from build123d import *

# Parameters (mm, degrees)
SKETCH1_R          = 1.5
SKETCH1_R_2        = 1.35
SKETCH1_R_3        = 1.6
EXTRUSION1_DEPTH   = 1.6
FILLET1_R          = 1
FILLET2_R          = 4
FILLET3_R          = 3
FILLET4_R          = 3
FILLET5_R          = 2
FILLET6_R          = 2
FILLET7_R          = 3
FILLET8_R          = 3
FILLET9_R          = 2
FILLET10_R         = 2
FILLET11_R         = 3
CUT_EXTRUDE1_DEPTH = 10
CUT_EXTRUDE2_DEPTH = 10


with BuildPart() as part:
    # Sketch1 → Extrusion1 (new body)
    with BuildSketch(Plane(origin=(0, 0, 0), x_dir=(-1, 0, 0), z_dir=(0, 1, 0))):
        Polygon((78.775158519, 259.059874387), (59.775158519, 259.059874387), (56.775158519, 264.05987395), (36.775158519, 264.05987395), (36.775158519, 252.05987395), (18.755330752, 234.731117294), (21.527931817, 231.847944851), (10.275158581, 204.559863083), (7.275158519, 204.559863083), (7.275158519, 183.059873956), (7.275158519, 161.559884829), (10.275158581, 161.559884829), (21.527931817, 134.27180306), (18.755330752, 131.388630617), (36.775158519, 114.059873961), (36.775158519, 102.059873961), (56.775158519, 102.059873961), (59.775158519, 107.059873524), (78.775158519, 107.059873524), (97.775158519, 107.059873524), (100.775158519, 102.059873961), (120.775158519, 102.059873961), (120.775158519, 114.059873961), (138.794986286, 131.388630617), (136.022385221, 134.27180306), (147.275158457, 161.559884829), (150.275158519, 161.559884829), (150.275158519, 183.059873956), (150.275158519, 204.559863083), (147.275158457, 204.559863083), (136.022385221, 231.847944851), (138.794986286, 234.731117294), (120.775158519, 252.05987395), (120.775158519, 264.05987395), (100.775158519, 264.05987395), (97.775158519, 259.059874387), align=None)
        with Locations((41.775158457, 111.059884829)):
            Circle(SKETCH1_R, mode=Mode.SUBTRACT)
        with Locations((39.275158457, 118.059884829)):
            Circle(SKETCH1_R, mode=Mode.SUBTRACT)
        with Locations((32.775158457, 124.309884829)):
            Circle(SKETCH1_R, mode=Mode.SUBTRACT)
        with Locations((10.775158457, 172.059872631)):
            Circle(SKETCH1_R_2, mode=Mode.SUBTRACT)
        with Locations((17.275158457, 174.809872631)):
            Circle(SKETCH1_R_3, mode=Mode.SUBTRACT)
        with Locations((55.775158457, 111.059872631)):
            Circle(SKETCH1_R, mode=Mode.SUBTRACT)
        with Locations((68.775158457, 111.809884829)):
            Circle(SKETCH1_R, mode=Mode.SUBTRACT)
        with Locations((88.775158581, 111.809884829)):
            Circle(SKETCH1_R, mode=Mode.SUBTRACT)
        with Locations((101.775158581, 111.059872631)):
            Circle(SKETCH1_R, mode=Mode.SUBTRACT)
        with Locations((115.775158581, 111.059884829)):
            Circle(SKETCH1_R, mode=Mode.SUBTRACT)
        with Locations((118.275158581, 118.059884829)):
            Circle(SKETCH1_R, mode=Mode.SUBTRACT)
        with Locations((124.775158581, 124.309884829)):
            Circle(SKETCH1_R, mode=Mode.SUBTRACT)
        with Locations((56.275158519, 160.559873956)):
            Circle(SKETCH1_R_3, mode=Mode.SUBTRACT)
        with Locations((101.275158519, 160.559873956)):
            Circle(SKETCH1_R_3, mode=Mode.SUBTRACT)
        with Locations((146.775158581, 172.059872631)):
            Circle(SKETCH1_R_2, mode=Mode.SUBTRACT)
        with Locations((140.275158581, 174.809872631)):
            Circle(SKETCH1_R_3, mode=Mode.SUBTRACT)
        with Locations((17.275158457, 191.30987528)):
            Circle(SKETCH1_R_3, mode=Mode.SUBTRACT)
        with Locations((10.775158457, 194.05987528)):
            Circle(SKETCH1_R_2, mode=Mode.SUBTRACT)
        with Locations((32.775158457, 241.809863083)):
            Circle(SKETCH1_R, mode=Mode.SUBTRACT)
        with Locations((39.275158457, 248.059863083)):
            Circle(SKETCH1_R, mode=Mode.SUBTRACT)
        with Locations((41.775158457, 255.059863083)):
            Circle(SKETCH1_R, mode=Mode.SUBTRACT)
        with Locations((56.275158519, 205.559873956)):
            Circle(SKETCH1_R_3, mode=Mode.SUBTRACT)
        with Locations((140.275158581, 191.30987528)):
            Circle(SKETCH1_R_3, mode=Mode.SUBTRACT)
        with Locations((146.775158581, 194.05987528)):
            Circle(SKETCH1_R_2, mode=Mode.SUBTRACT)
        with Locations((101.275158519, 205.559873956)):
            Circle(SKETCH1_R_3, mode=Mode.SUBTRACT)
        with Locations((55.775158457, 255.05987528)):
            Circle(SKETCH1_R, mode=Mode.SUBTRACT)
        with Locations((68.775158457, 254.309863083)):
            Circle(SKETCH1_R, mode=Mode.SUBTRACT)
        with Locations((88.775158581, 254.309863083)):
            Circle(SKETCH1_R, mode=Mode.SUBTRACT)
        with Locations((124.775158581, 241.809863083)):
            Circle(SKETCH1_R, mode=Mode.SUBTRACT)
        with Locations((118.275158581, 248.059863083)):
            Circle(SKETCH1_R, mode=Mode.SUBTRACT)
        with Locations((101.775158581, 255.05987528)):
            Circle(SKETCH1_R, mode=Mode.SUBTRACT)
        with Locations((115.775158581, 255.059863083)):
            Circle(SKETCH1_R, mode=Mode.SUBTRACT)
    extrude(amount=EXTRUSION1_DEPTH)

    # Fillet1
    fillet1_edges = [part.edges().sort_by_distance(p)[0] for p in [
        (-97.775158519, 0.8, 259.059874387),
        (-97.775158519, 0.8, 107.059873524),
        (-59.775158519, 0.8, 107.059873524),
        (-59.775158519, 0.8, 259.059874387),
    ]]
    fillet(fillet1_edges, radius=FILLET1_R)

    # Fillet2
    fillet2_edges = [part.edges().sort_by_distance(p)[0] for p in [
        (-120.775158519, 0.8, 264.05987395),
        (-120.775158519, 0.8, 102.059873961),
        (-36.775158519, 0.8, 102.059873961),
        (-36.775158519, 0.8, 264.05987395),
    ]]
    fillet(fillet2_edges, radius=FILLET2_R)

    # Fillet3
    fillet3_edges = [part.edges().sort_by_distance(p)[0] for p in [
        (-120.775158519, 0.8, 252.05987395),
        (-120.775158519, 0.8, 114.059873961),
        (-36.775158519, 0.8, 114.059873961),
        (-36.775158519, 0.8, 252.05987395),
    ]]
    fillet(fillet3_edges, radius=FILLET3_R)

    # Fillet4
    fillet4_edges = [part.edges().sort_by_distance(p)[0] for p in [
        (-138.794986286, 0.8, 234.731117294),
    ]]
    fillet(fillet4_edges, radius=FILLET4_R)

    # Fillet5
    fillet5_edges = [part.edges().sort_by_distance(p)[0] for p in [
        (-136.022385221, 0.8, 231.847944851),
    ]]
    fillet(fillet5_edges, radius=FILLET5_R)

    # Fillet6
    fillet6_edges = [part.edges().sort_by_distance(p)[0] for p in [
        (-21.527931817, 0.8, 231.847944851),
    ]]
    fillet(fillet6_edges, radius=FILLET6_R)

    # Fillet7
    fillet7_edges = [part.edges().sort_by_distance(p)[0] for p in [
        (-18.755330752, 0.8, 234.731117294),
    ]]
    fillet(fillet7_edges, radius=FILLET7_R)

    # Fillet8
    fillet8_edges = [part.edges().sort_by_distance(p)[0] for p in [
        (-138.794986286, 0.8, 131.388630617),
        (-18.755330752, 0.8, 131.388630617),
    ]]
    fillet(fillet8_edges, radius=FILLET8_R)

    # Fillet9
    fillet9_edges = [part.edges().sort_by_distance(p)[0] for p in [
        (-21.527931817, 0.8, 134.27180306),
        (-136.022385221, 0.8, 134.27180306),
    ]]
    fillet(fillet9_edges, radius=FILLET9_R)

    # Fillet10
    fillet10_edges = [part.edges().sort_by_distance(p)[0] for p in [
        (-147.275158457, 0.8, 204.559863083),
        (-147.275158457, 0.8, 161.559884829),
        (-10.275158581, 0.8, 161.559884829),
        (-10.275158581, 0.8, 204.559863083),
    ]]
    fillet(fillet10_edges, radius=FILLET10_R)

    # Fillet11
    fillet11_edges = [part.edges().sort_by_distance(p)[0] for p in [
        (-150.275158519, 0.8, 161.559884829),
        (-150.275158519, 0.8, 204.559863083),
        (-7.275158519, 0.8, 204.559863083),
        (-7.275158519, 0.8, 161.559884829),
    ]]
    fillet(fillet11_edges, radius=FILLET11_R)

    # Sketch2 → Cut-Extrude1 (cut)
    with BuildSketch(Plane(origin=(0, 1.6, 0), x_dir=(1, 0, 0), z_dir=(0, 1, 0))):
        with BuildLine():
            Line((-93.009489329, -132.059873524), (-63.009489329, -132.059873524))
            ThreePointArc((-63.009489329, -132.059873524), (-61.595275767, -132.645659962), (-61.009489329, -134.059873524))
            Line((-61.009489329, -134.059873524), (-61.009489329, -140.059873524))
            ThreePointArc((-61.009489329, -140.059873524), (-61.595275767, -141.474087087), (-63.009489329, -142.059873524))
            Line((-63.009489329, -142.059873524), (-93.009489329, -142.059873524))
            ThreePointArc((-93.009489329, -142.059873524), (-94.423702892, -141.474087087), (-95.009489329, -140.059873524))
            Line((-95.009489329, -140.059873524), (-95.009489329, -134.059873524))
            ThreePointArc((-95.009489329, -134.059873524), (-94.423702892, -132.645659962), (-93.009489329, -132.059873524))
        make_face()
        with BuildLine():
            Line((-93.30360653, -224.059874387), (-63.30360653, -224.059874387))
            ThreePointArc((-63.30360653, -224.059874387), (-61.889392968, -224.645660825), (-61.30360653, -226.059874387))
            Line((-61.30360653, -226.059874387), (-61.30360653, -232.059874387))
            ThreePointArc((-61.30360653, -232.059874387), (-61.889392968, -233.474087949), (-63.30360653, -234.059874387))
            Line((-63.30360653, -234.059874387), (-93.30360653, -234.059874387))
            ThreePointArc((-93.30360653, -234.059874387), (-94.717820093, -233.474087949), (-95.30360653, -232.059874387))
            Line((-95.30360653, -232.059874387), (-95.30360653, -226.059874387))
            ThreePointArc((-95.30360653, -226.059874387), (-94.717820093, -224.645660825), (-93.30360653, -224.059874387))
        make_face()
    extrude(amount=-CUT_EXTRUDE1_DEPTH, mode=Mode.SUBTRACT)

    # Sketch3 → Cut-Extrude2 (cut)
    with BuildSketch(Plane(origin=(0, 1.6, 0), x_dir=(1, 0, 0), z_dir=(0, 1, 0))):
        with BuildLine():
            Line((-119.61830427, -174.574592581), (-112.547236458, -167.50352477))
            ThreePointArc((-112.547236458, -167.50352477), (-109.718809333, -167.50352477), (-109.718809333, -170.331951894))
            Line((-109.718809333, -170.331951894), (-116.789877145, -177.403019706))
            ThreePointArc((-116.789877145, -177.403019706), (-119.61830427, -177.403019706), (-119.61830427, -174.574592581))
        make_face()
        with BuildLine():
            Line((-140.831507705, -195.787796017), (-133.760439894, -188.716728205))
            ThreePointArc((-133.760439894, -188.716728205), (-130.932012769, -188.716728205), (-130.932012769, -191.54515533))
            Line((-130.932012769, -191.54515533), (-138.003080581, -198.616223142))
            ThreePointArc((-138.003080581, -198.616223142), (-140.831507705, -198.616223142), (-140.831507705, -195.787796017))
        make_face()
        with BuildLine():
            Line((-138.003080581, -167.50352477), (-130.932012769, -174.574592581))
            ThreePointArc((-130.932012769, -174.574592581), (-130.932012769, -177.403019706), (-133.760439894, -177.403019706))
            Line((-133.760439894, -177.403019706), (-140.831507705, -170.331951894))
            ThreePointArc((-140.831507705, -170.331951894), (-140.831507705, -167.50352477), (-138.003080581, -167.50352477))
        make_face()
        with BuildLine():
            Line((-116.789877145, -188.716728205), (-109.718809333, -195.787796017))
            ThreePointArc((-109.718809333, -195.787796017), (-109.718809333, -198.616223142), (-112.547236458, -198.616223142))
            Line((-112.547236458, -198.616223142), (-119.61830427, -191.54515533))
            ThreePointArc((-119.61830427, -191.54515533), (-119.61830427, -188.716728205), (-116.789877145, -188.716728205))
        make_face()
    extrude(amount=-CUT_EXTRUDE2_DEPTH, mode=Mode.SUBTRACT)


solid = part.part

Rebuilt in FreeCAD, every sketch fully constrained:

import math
import FreeCAD as App
import Part
import Sketcher

V = App.Vector
Q = App.Units.Quantity


def edges_at(feature, points):
    """Names of the edges that pass closest to the given points."""
    edges = feature.Shape.Edges
    near = lambda p: min(range(len(edges)), key=lambda i: edges[i].distToShape(Part.Vertex(*p))[0])
    return sorted({f"Edge{near(p) + 1}" for p in points})

doc = App.newDocument("Part")
body = doc.addObject("PartDesign::Body", "Body")

# Sketch on XZ plane
sketch1 = body.newObject("Sketcher::SketchObject", "Sketch")
sketch1.AttachmentSupport = (doc.getObject("XZ_Plane"), [""])
sketch1.MapMode = "FlatFace"
sketch1.addGeometry([
    Part.LineSegment(V(-59.775159, 259.059874, 0), V(-56.775159, 264.059874, 0)),  # 0
    Part.LineSegment(V(-56.775159, 264.059874, 0), V(-36.775159, 264.059874, 0)),  # 1
    Part.LineSegment(V(-36.775159, 264.059874, 0), V(-36.775159, 252.059874, 0)),  # 2
    Part.LineSegment(V(-36.775159, 252.059874, 0), V(-18.755331, 234.731117, 0)),  # 3
    Part.LineSegment(V(-18.755331, 234.731117, 0), V(-21.527932, 231.847945, 0)),  # 4
    Part.LineSegment(V(-21.527932, 231.847945, 0), V(-10.275159, 204.559863, 0)),  # 5
    Part.LineSegment(V(-10.275159, 204.559863, 0), V(-7.275159, 204.559863, 0)),  # 6
    Part.LineSegment(V(-7.275159, 204.559863, 0), V(-7.275159, 161.559885, 0)),  # 7
    Part.LineSegment(V(-7.275159, 161.559885, 0), V(-10.275159, 161.559885, 0)),  # 8
    Part.LineSegment(V(-10.275159, 161.559885, 0), V(-21.527932, 134.271803, 0)),  # 9
    Part.LineSegment(V(-21.527932, 134.271803, 0), V(-18.755331, 131.388631, 0)),  # 10
    Part.LineSegment(V(-18.755331, 131.388631, 0), V(-36.775159, 114.059874, 0)),  # 11
    Part.LineSegment(V(-36.775159, 114.059874, 0), V(-36.775159, 102.059874, 0)),  # 12
    Part.LineSegment(V(-36.775159, 102.059874, 0), V(-56.775159, 102.059874, 0)),  # 13
    Part.LineSegment(V(-56.775159, 102.059874, 0), V(-59.775159, 107.059874, 0)),  # 14
    Part.LineSegment(V(-59.775159, 107.059874, 0), V(-97.775159, 107.059874, 0)),  # 15
    Part.LineSegment(V(-97.775159, 107.059874, 0), V(-100.775159, 102.059874, 0)),  # 16
    Part.LineSegment(V(-100.775159, 102.059874, 0), V(-120.775159, 102.059874, 0)),  # 17
    Part.LineSegment(V(-120.775159, 102.059874, 0), V(-120.775159, 114.059874, 0)),  # 18
    Part.LineSegment(V(-120.775159, 114.059874, 0), V(-138.794986, 131.388631, 0)),  # 19
    Part.LineSegment(V(-138.794986, 131.388631, 0), V(-136.022385, 134.271803, 0)),  # 20
    Part.LineSegment(V(-136.022385, 134.271803, 0), V(-147.275158, 161.559885, 0)),  # 21
    Part.LineSegment(V(-147.275158, 161.559885, 0), V(-150.275159, 161.559885, 0)),  # 22
    Part.LineSegment(V(-150.275159, 161.559885, 0), V(-150.275159, 204.559863, 0)),  # 23
    Part.LineSegment(V(-150.275159, 204.559863, 0), V(-147.275158, 204.559863, 0)),  # 24
    Part.LineSegment(V(-147.275158, 204.559863, 0), V(-136.022385, 231.847945, 0)),  # 25
    Part.LineSegment(V(-136.022385, 231.847945, 0), V(-138.794986, 234.731117, 0)),  # 26
    Part.LineSegment(V(-138.794986, 234.731117, 0), V(-120.775159, 252.059874, 0)),  # 27
    Part.LineSegment(V(-120.775159, 252.059874, 0), V(-120.775159, 264.059874, 0)),  # 28
    Part.LineSegment(V(-120.775159, 264.059874, 0), V(-100.775159, 264.059874, 0)),  # 29
    Part.LineSegment(V(-100.775159, 264.059874, 0), V(-97.775159, 259.059874, 0)),  # 30
    Part.LineSegment(V(-97.775159, 259.059874, 0), V(-59.775159, 259.059874, 0)),  # 31
    Part.Circle(V(-41.775158, 111.059885, 0), V(0, 0, 1), 1.5),  # 32
    Part.Circle(V(-39.275158, 118.059885, 0), V(0, 0, 1), 1.5),  # 33
    Part.Circle(V(-32.775158, 124.309885, 0), V(0, 0, 1), 1.5),  # 34
    Part.Circle(V(-55.775158, 111.059873, 0), V(0, 0, 1), 1.5),  # 35
    Part.Circle(V(-68.775158, 111.809885, 0), V(0, 0, 1), 1.5),  # 36
    Part.Circle(V(-10.775158, 172.059873, 0), V(0, 0, 1), 1.35),  # 37
    Part.Circle(V(-17.275158, 174.809873, 0), V(0, 0, 1), 1.6),  # 38
    Part.Circle(V(-56.275159, 160.559874, 0), V(0, 0, 1), 1.6),  # 39
    Part.Circle(V(-88.775159, 111.809885, 0), V(0, 0, 1), 1.5),  # 40
    Part.Circle(V(-101.775159, 111.059873, 0), V(0, 0, 1), 1.5),  # 41
    Part.Circle(V(-115.775159, 111.059885, 0), V(0, 0, 1), 1.5),  # 42
    Part.Circle(V(-118.275159, 118.059885, 0), V(0, 0, 1), 1.5),  # 43
    Part.Circle(V(-124.775159, 124.309885, 0), V(0, 0, 1), 1.5),  # 44
    Part.Circle(V(-101.275159, 160.559874, 0), V(0, 0, 1), 1.6),  # 45
    Part.Circle(V(-146.775159, 172.059873, 0), V(0, 0, 1), 1.35),  # 46
    Part.Circle(V(-140.275159, 174.809873, 0), V(0, 0, 1), 1.6),  # 47
    Part.Circle(V(-17.275158, 191.309875, 0), V(0, 0, 1), 1.6),  # 48
    Part.Circle(V(-10.775158, 194.059875, 0), V(0, 0, 1), 1.35),  # 49
    Part.Circle(V(-56.275159, 205.559874, 0), V(0, 0, 1), 1.6),  # 50
    Part.Circle(V(-32.775158, 241.809863, 0), V(0, 0, 1), 1.5),  # 51
    Part.Circle(V(-39.275158, 248.059863, 0), V(0, 0, 1), 1.5),  # 52
    Part.Circle(V(-41.775158, 255.059863, 0), V(0, 0, 1), 1.5),  # 53
    Part.Circle(V(-55.775158, 255.059875, 0), V(0, 0, 1), 1.5),  # 54
    Part.Circle(V(-68.775158, 254.309863, 0), V(0, 0, 1), 1.5),  # 55
    Part.Circle(V(-101.275159, 205.559874, 0), V(0, 0, 1), 1.6),  # 56
    Part.Circle(V(-140.275159, 191.309875, 0), V(0, 0, 1), 1.6),  # 57
    Part.Circle(V(-146.775159, 194.059875, 0), V(0, 0, 1), 1.35),  # 58
    Part.Circle(V(-88.775159, 254.309863, 0), V(0, 0, 1), 1.5),  # 59
    Part.Circle(V(-101.775159, 255.059875, 0), V(0, 0, 1), 1.5),  # 60
    Part.Circle(V(-124.775159, 241.809863, 0), V(0, 0, 1), 1.5),  # 61
    Part.Circle(V(-118.275159, 248.059863, 0), V(0, 0, 1), 1.5),  # 62
    Part.Circle(V(-115.775159, 255.059863, 0), V(0, 0, 1), 1.5),  # 63
], False)
sketch1.addConstraint([
    Sketcher.Constraint("Coincident", 0, 2, 1, 1),
    Sketcher.Constraint("Coincident", 1, 2, 2, 1),
    Sketcher.Constraint("Coincident", 2, 2, 3, 1),
    Sketcher.Constraint("Coincident", 3, 2, 4, 1),
    Sketcher.Constraint("Coincident", 4, 2, 5, 1),
    Sketcher.Constraint("Coincident", 5, 2, 6, 1),
    Sketcher.Constraint("Coincident", 6, 2, 7, 1),
    Sketcher.Constraint("Coincident", 7, 2, 8, 1),
    Sketcher.Constraint("Coincident", 8, 2, 9, 1),
    Sketcher.Constraint("Coincident", 9, 2, 10, 1),
    Sketcher.Constraint("Coincident", 10, 2, 11, 1),
    Sketcher.Constraint("Coincident", 11, 2, 12, 1),
    Sketcher.Constraint("Coincident", 12, 2, 13, 1),
    Sketcher.Constraint("Coincident", 13, 2, 14, 1),
    Sketcher.Constraint("Coincident", 14, 2, 15, 1),
    Sketcher.Constraint("Coincident", 15, 2, 16, 1),
    Sketcher.Constraint("Coincident", 16, 2, 17, 1),
    Sketcher.Constraint("Coincident", 17, 2, 18, 1),
    Sketcher.Constraint("Coincident", 18, 2, 19, 1),
    Sketcher.Constraint("Coincident", 19, 2, 20, 1),
    Sketcher.Constraint("Coincident", 20, 2, 21, 1),
    Sketcher.Constraint("Coincident", 21, 2, 22, 1),
    Sketcher.Constraint("Coincident", 22, 2, 23, 1),
    Sketcher.Constraint("Coincident", 23, 2, 24, 1),
    Sketcher.Constraint("Coincident", 24, 2, 25, 1),
    Sketcher.Constraint("Coincident", 25, 2, 26, 1),
    Sketcher.Constraint("Coincident", 26, 2, 27, 1),
    Sketcher.Constraint("Coincident", 27, 2, 28, 1),
    Sketcher.Constraint("Coincident", 28, 2, 29, 1),
    Sketcher.Constraint("Coincident", 29, 2, 30, 1),
    Sketcher.Constraint("Coincident", 30, 2, 31, 1),
    Sketcher.Constraint("Coincident", 31, 2, 0, 1),
    Sketcher.Constraint("Horizontal", 1),
    Sketcher.Constraint("Vertical", 2),
    Sketcher.Constraint("Horizontal", 6),
    Sketcher.Constraint("Vertical", 7),
    Sketcher.Constraint("Horizontal", 8),
    Sketcher.Constraint("Vertical", 12),
    Sketcher.Constraint("Horizontal", 13),
    Sketcher.Constraint("Horizontal", 15),
    Sketcher.Constraint("Horizontal", 17),
    Sketcher.Constraint("Vertical", 18),
    Sketcher.Constraint("Horizontal", 22),
    Sketcher.Constraint("Vertical", 23),
    Sketcher.Constraint("Horizontal", 24),
    Sketcher.Constraint("Vertical", 28),
    Sketcher.Constraint("Horizontal", 29),
    Sketcher.Constraint("Horizontal", 31),
    Sketcher.Constraint("Equal", 32, 33),
    Sketcher.Constraint("Equal", 33, 34),
    Sketcher.Constraint("Equal", 34, 35),
    Sketcher.Constraint("Equal", 35, 36),
    Sketcher.Constraint("Equal", 38, 39),
    Sketcher.Constraint("Equal", 36, 40),
    Sketcher.Constraint("Equal", 40, 41),
    Sketcher.Constraint("Equal", 41, 42),
    Sketcher.Constraint("Equal", 42, 43),
    Sketcher.Constraint("Equal", 43, 44),
    Sketcher.Constraint("Equal", 39, 45),
    Sketcher.Constraint("Equal", 37, 46),
    Sketcher.Constraint("Equal", 45, 47),
    Sketcher.Constraint("Equal", 47, 48),
    Sketcher.Constraint("Equal", 46, 49),
    Sketcher.Constraint("Equal", 48, 50),
    Sketcher.Constraint("Equal", 44, 51),
    Sketcher.Constraint("Equal", 51, 52),
    Sketcher.Constraint("Equal", 52, 53),
    Sketcher.Constraint("Equal", 53, 54),
    Sketcher.Constraint("Equal", 54, 55),
    Sketcher.Constraint("Equal", 50, 56),
    Sketcher.Constraint("Equal", 56, 57),
    Sketcher.Constraint("Equal", 49, 58),
    Sketcher.Constraint("Equal", 55, 59),
    Sketcher.Constraint("Equal", 59, 60),
    Sketcher.Constraint("Equal", 60, 61),
    Sketcher.Constraint("Equal", 61, 62),
    Sketcher.Constraint("Equal", 62, 63),
    Sketcher.Constraint("Perpendicular", 3, 4),
    Sketcher.Constraint("Perpendicular", 10, 11),
    Sketcher.Constraint("Parallel", 0, 16),
    Sketcher.Constraint("Perpendicular", 4, 19),
    Sketcher.Constraint("Perpendicular", 19, 20),
    Sketcher.Constraint("Parallel", 5, 21),
    Sketcher.Constraint("Parallel", 9, 25),
    Sketcher.Constraint("Perpendicular", 11, 26),
    Sketcher.Constraint("Perpendicular", 26, 27),
    Sketcher.Constraint("Parallel", 14, 30),
    Sketcher.Constraint("Horizontal", 36, 3, 40, 3),
    Sketcher.Constraint("Horizontal", 35, 3, 41, 3),
    Sketcher.Constraint("Horizontal", 32, 3, 42, 3),
    Sketcher.Constraint("Horizontal", 33, 3, 43, 3),
    Sketcher.Constraint("Horizontal", 34, 3, 44, 3),
    Sketcher.Constraint("Horizontal", 39, 3, 45, 3),
    Sketcher.Constraint("Horizontal", 37, 3, 46, 3),
    Sketcher.Constraint("Horizontal", 38, 3, 47, 3),
    Sketcher.Constraint("Horizontal", 50, 3, 56, 3),
    Sketcher.Constraint("Horizontal", 48, 3, 57, 3),
    Sketcher.Constraint("Horizontal", 49, 3, 58, 3),
    Sketcher.Constraint("Horizontal", 55, 3, 59, 3),
    Sketcher.Constraint("Horizontal", 54, 3, 60, 3),
    Sketcher.Constraint("Horizontal", 51, 3, 61, 3),
    Sketcher.Constraint("Horizontal", 52, 3, 62, 3),
    Sketcher.Constraint("Horizontal", 53, 3, 63, 3),
    Sketcher.Constraint("Horizontal", 13, 2, 16, 2),
    Sketcher.Constraint("Horizontal", 11, 2, 18, 2),
    Sketcher.Constraint("Horizontal", 10, 2, 19, 2),
    Sketcher.Constraint("Horizontal", 9, 2, 20, 2),
    Sketcher.Constraint("Horizontal", 8, 2, 21, 2),
    Sketcher.Constraint("Horizontal", 6, 2, 23, 2),
    Sketcher.Constraint("Horizontal", 4, 2, 25, 2),
    Sketcher.Constraint("Horizontal", 3, 2, 26, 2),
    Sketcher.Constraint("Horizontal", 2, 2, 27, 2),
    Sketcher.Constraint("Horizontal", 1, 2, 28, 2),
    Sketcher.Constraint("Vertical", 38, 3, 48, 3),
    Sketcher.Constraint("Vertical", 37, 3, 49, 3),
    Sketcher.Constraint("Vertical", 39, 3, 50, 3),
    Sketcher.Constraint("Vertical", 34, 3, 51, 3),
    Sketcher.Constraint("Vertical", 33, 3, 52, 3),
    Sketcher.Constraint("Vertical", 32, 3, 53, 3),
    Sketcher.Constraint("Vertical", 35, 3, 54, 3),
    Sketcher.Constraint("Vertical", 36, 3, 55, 3),
    Sketcher.Constraint("Vertical", 45, 3, 56, 3),
    Sketcher.Constraint("Vertical", 47, 3, 57, 3),
    Sketcher.Constraint("Vertical", 46, 3, 58, 3),
    Sketcher.Constraint("Vertical", 40, 3, 59, 3),
    Sketcher.Constraint("Vertical", 41, 3, 60, 3),
    Sketcher.Constraint("Vertical", 44, 3, 61, 3),
    Sketcher.Constraint("Vertical", 43, 3, 62, 3),
    Sketcher.Constraint("Vertical", 42, 3, 63, 3),
    Sketcher.Constraint("Vertical", 5, 2, 8, 2),
    Sketcher.Constraint("Vertical", 4, 2, 9, 2),
    Sketcher.Constraint("Vertical", 3, 2, 10, 2),
    Sketcher.Constraint("Vertical", 2, 2, 11, 2),
    Sketcher.Constraint("Vertical", 0, 2, 13, 2),
    Sketcher.Constraint("Vertical", 21, 2, 24, 2),
    Sketcher.Constraint("Vertical", 20, 2, 25, 2),
    Sketcher.Constraint("Vertical", 19, 2, 26, 2),
    Sketcher.Constraint("Vertical", 16, 2, 29, 2),
    Sketcher.Constraint("Vertical", 15, 2, 30, 2),
    Sketcher.Constraint("Vertical", 14, 2, 31, 2),
    Sketcher.Constraint("Equal", 13, 17),
    Sketcher.Constraint("Equal", 8, 22),
    Sketcher.Constraint("Equal", 2, 12),
    Sketcher.Constraint("Diameter", 32, 3.0),
    Sketcher.Constraint("Diameter", 37, 2.7),
    Sketcher.Constraint("Diameter", 38, 3.2),
    Sketcher.Constraint("DistanceX", 1, 1, 1, 2, 20.0),
    Sketcher.Constraint("DistanceX", 6, 1, 6, 2, 3.0),
    Sketcher.Constraint("DistanceX", 15, 2, 15, 1, 38.0),
    Sketcher.Constraint("DistanceY", 2, 2, 2, 1, 12.0),
    Sketcher.Constraint("Distance", 3, 25.0),
    Sketcher.Constraint("Distance", 4, 4.0),
    Sketcher.Constraint("Angle", 3, Q("-43.88 deg")),
    Sketcher.Constraint("DistanceY", 7, 2, 7, 1, 42.999978),
    Sketcher.Constraint("Distance", 0, 5.830952),
    Sketcher.Constraint("DistanceX", 32, 3, -1, 1, 41.775158),
    Sketcher.Constraint("DistanceX", 33, 3, -1, 1, 39.275158),
    Sketcher.Constraint("DistanceX", 34, 3, -1, 1, 32.775158),
    Sketcher.Constraint("DistanceX", 35, 3, -1, 1, 55.775158),
    Sketcher.Constraint("DistanceX", 36, 3, -1, 1, 68.775158),
    Sketcher.Constraint("DistanceX", 37, 3, -1, 1, 10.775158),
    Sketcher.Constraint("DistanceX", 38, 3, -1, 1, 17.275158),
    Sketcher.Constraint("DistanceX", 39, 3, -1, 1, 56.275159),
    Sketcher.Constraint("DistanceX", 40, 3, -1, 1, 88.775159),
    Sketcher.Constraint("DistanceX", 41, 3, -1, 1, 101.775159),
    Sketcher.Constraint("DistanceX", 42, 3, -1, 1, 115.775159),
    Sketcher.Constraint("DistanceX", 43, 3, -1, 1, 118.275159),
    Sketcher.Constraint("DistanceX", 44, 3, -1, 1, 124.775159),
    Sketcher.Constraint("DistanceX", 45, 3, -1, 1, 101.275159),
    Sketcher.Constraint("DistanceX", 46, 3, -1, 1, 146.775159),
    Sketcher.Constraint("DistanceX", 47, 3, -1, 1, 140.275159),
    Sketcher.Constraint("DistanceX", 0, 2, -1, 1, 56.775159),
    Sketcher.Constraint("DistanceX", 5, 2, -1, 1, 10.275159),
    Sketcher.Constraint("DistanceY", -1, 1, 10, 2, 131.388631),
    Sketcher.Constraint("DistanceX", 14, 2, -1, 1, 59.775159),
    Sketcher.Constraint("Distance", 5, 29.517187),
    Sketcher.Constraint("DistanceY", -1, 1, 32, 3, 111.059885),
    Sketcher.Constraint("DistanceY", -1, 1, 33, 3, 118.059885),
    Sketcher.Constraint("DistanceY", -1, 1, 34, 3, 124.309885),
    Sketcher.Constraint("DistanceY", -1, 1, 35, 3, 111.059873),
    Sketcher.Constraint("DistanceY", -1, 1, 36, 3, 111.809885),
    Sketcher.Constraint("DistanceY", -1, 1, 37, 3, 172.059873),
    Sketcher.Constraint("DistanceY", -1, 1, 38, 3, 174.809873),
    Sketcher.Constraint("DistanceY", -1, 1, 39, 3, 160.559874),
    Sketcher.Constraint("DistanceY", -1, 1, 48, 3, 191.309875),
    Sketcher.Constraint("DistanceY", -1, 1, 49, 3, 194.059875),
    Sketcher.Constraint("DistanceY", -1, 1, 50, 3, 205.559874),
    Sketcher.Constraint("DistanceY", -1, 1, 51, 3, 241.809863),
    Sketcher.Constraint("DistanceY", -1, 1, 52, 3, 248.059863),
    Sketcher.Constraint("DistanceY", -1, 1, 53, 3, 255.059863),
    Sketcher.Constraint("DistanceY", -1, 1, 54, 3, 255.059875),
    Sketcher.Constraint("DistanceY", -1, 1, 55, 3, 254.309863),
])
pad1 = body.newObject("PartDesign::Pad", "Pad")
pad1.Profile = sketch1
pad1.Length = 1.6
pad1.Reversed = True
doc.recompute()

fillet = body.newObject("PartDesign::Fillet", "Fillet")
fillet.Base = (pad1, edges_at(pad1, [
    (-97.775, 0.8, 259.06),
    (-97.775, 0.8, 107.06),
    (-59.775, 0.8, 107.06),
    (-59.775, 0.8, 259.06),
]))
fillet.Radius = 1
doc.recompute()

fillet2 = body.newObject("PartDesign::Fillet", "Fillet001")
fillet2.Base = (fillet, edges_at(fillet, [
    (-120.775, 0.8, 264.06),
    (-120.775, 0.8, 102.06),
    (-36.775, 0.8, 102.06),
    (-36.775, 0.8, 264.06),
]))
fillet2.Radius = 4
doc.recompute()

fillet3 = body.newObject("PartDesign::Fillet", "Fillet002")
fillet3.Base = (fillet2, edges_at(fillet2, [
    (-120.775, 0.8, 252.06),
    (-120.775, 0.8, 114.06),
    (-36.775, 0.8, 114.06),
    (-36.775, 0.8, 252.06),
]))
fillet3.Radius = 3
doc.recompute()

fillet4 = body.newObject("PartDesign::Fillet", "Fillet003")
fillet4.Base = (fillet3, edges_at(fillet3, [(-138.795, 0.8, 234.731)]))
fillet4.Radius = 3
doc.recompute()

fillet5 = body.newObject("PartDesign::Fillet", "Fillet004")
fillet5.Base = (fillet4, edges_at(fillet4, [(-136.022, 0.8, 231.848)]))
fillet5.Radius = 2
doc.recompute()

fillet6 = body.newObject("PartDesign::Fillet", "Fillet005")
fillet6.Base = (fillet5, edges_at(fillet5, [(-21.528, 0.8, 231.848)]))
fillet6.Radius = 2
doc.recompute()

fillet7 = body.newObject("PartDesign::Fillet", "Fillet006")
fillet7.Base = (fillet6, edges_at(fillet6, [(-18.755, 0.8, 234.731)]))
fillet7.Radius = 3
doc.recompute()

fillet8 = body.newObject("PartDesign::Fillet", "Fillet007")
fillet8.Base = (fillet7, edges_at(fillet7, [(-138.795, 0.8, 131.389), (-18.755, 0.8, 131.389)]))
fillet8.Radius = 3
doc.recompute()

fillet9 = body.newObject("PartDesign::Fillet", "Fillet008")
fillet9.Base = (fillet8, edges_at(fillet8, [(-21.528, 0.8, 134.272), (-136.022, 0.8, 134.272)]))
fillet9.Radius = 2
doc.recompute()

fillet10 = body.newObject("PartDesign::Fillet", "Fillet009")
fillet10.Base = (fillet9, edges_at(fillet9, [
    (-147.275, 0.8, 204.56),
    (-147.275, 0.8, 161.56),
    (-10.275, 0.8, 161.56),
    (-10.275, 0.8, 204.56),
]))
fillet10.Radius = 2
doc.recompute()

fillet11 = body.newObject("PartDesign::Fillet", "Fillet010")
fillet11.Base = (fillet10, edges_at(fillet10, [
    (-150.275, 0.8, 161.56),
    (-150.275, 0.8, 204.56),
    (-7.275, 0.8, 204.56),
    (-7.275, 0.8, 161.56),
]))
fillet11.Radius = 3

# Sketch on XZ plane
sketch2 = body.newObject("Sketcher::SketchObject", "Sketch001")
sketch2.AttachmentSupport = (doc.getObject("XZ_Plane"), [""])
sketch2.MapMode = "FlatFace"
sketch2.AttachmentOffset = App.Placement(V(0, 0, -1.6), App.Rotation())
sketch2.addGeometry([
    Part.LineSegment(V(-63.009489, 132.059874, 0), V(-93.009489, 132.059874, 0)),  # 0
    Part.ArcOfCircle(Part.Circle(V(-93.009489, 134.059874, 0), V(0, 0, 1), 2), math.radians(180), math.radians(270)),  # 1
    Part.LineSegment(V(-95.009489, 134.059874, 0), V(-95.009489, 140.059874, 0)),  # 2
    Part.ArcOfCircle(Part.Circle(V(-93.009489, 140.059874, 0), V(0, 0, 1), 2), math.radians(90), math.radians(180)),  # 3
    Part.LineSegment(V(-93.009489, 142.059874, 0), V(-63.009489, 142.059874, 0)),  # 4
    Part.ArcOfCircle(Part.Circle(V(-63.009489, 140.059874, 0), V(0, 0, 1), 2), math.radians(0), math.radians(90)),  # 5
    Part.LineSegment(V(-61.009489, 140.059874, 0), V(-61.009489, 134.059874, 0)),  # 6
    Part.ArcOfCircle(Part.Circle(V(-63.009489, 134.059874, 0), V(0, 0, 1), 2), math.radians(-90), math.radians(0)),  # 7
    Part.LineSegment(V(-63.303607, 224.059874, 0), V(-93.303607, 224.059874, 0)),  # 8
    Part.ArcOfCircle(Part.Circle(V(-93.303607, 226.059874, 0), V(0, 0, 1), 2), math.radians(180), math.radians(270)),  # 9
    Part.LineSegment(V(-95.303607, 226.059874, 0), V(-95.303607, 232.059874, 0)),  # 10
    Part.ArcOfCircle(Part.Circle(V(-93.303607, 232.059874, 0), V(0, 0, 1), 2), math.radians(90), math.radians(180)),  # 11
    Part.LineSegment(V(-93.303607, 234.059874, 0), V(-63.303607, 234.059874, 0)),  # 12
    Part.ArcOfCircle(Part.Circle(V(-63.303607, 232.059874, 0), V(0, 0, 1), 2), math.radians(0), math.radians(90)),  # 13
    Part.LineSegment(V(-61.303607, 232.059874, 0), V(-61.303607, 226.059874, 0)),  # 14
    Part.ArcOfCircle(Part.Circle(V(-63.303607, 226.059874, 0), V(0, 0, 1), 2), math.radians(-90), math.radians(0)),  # 15
], False)
sketch2.addConstraint([
    Sketcher.Constraint("Tangent", 0, 2, 1, 2),
    Sketcher.Constraint("Tangent", 1, 1, 2, 1),
    Sketcher.Constraint("Tangent", 2, 2, 3, 2),
    Sketcher.Constraint("Tangent", 3, 1, 4, 1),
    Sketcher.Constraint("Tangent", 4, 2, 5, 2),
    Sketcher.Constraint("Tangent", 5, 1, 6, 1),
    Sketcher.Constraint("Tangent", 6, 2, 7, 2),
    Sketcher.Constraint("Tangent", 7, 1, 0, 1),
    Sketcher.Constraint("Tangent", 8, 2, 9, 2),
    Sketcher.Constraint("Tangent", 9, 1, 10, 1),
    Sketcher.Constraint("Tangent", 10, 2, 11, 2),
    Sketcher.Constraint("Tangent", 11, 1, 12, 1),
    Sketcher.Constraint("Tangent", 12, 2, 13, 2),
    Sketcher.Constraint("Tangent", 13, 1, 14, 1),
    Sketcher.Constraint("Tangent", 14, 2, 15, 2),
    Sketcher.Constraint("Tangent", 15, 1, 8, 1),
    Sketcher.Constraint("Horizontal", 0),
    Sketcher.Constraint("Vertical", 2),
    Sketcher.Constraint("Horizontal", 4),
    Sketcher.Constraint("Vertical", 6),
    Sketcher.Constraint("Horizontal", 8),
    Sketcher.Constraint("Vertical", 10),
    Sketcher.Constraint("Horizontal", 12),
    Sketcher.Constraint("Vertical", 14),
    Sketcher.Constraint("Equal", 1, 3),
    Sketcher.Constraint("Equal", 3, 5),
    Sketcher.Constraint("Equal", 5, 7),
    Sketcher.Constraint("Equal", 7, 9),
    Sketcher.Constraint("Equal", 9, 11),
    Sketcher.Constraint("Equal", 11, 13),
    Sketcher.Constraint("Equal", 13, 15),
    Sketcher.Constraint("Equal", 4, 8),
    Sketcher.Constraint("Equal", 6, 10),
    Sketcher.Constraint("Radius", 1, 2.0),
    Sketcher.Constraint("DistanceX", 0, 2, 0, 1, 30.0),
    Sketcher.Constraint("DistanceY", 2, 1, 2, 2, 6.0),
    Sketcher.Constraint("DistanceY", 3, 3, 9, 3, 86.000001),
    Sketcher.Constraint("DistanceX", 1, 3, -1, 1, 93.009489),
    Sketcher.Constraint("DistanceY", -1, 1, 1, 3, 134.059874),
    Sketcher.Constraint("DistanceX", 9, 3, -1, 1, 93.303607),
])
pocket1 = body.newObject("PartDesign::Pocket", "Pocket")
pocket1.Profile = sketch2
pocket1.Length = 10
pocket1.Reversed = True

# Sketch on XZ plane
sketch3 = body.newObject("Sketcher::SketchObject", "Sketch002")
sketch3.AttachmentSupport = (doc.getObject("XZ_Plane"), [""])
sketch3.MapMode = "FlatFace"
sketch3.AttachmentOffset = App.Placement(V(0, 0, -1.6), App.Rotation())
sketch3.addGeometry([
    Part.LineSegment(V(-112.547236, 167.503525, 0), V(-119.618304, 174.574593, 0)),  # 0
    Part.ArcOfCircle(Part.Circle(V(-118.204091, 175.988806, 0), V(0, 0, 1), 2), math.radians(45), math.radians(225)),  # 1
    Part.LineSegment(V(-116.789877, 177.40302, 0), V(-109.718809, 170.331952, 0)),  # 2
    Part.ArcOfCircle(Part.Circle(V(-111.133023, 168.917738, 0), V(0, 0, 1), 2), math.radians(-135), math.radians(45)),  # 3
    Part.LineSegment(V(-133.76044, 188.716728, 0), V(-140.831508, 195.787796, 0)),  # 4
    Part.ArcOfCircle(Part.Circle(V(-139.417294, 197.20201, 0), V(0, 0, 1), 2), math.radians(45), math.radians(225)),  # 5
    Part.LineSegment(V(-138.003081, 198.616223, 0), V(-130.932013, 191.545155, 0)),  # 6
    Part.ArcOfCircle(Part.Circle(V(-132.346226, 190.130942, 0), V(0, 0, 1), 2), math.radians(-135), math.radians(45)),  # 7
    Part.LineSegment(V(-130.932013, 174.574593, 0), V(-138.003081, 167.503525, 0)),  # 8
    Part.ArcOfCircle(Part.Circle(V(-139.417294, 168.917738, 0), V(0, 0, 1), 2), math.radians(135), math.radians(315)),  # 9
    Part.LineSegment(V(-140.831508, 170.331952, 0), V(-133.76044, 177.40302, 0)),  # 10
    Part.ArcOfCircle(Part.Circle(V(-132.346226, 175.988806, 0), V(0, 0, 1), 2), math.radians(-45), math.radians(135)),  # 11
    Part.LineSegment(V(-109.718809, 195.787796, 0), V(-116.789877, 188.716728, 0)),  # 12
    Part.ArcOfCircle(Part.Circle(V(-118.204091, 190.130942, 0), V(0, 0, 1), 2), math.radians(135), math.radians(315)),  # 13
    Part.LineSegment(V(-119.618304, 191.545155, 0), V(-112.547236, 198.616223, 0)),  # 14
    Part.ArcOfCircle(Part.Circle(V(-111.133023, 197.20201, 0), V(0, 0, 1), 2), math.radians(-45), math.radians(135)),  # 15
], False)
sketch3.addConstraint([
    Sketcher.Constraint("Tangent", 0, 2, 1, 2),
    Sketcher.Constraint("Tangent", 1, 1, 2, 1),
    Sketcher.Constraint("Tangent", 2, 2, 3, 2),
    Sketcher.Constraint("Tangent", 3, 1, 0, 1),
    Sketcher.Constraint("Tangent", 4, 2, 5, 2),
    Sketcher.Constraint("Tangent", 5, 1, 6, 1),
    Sketcher.Constraint("Tangent", 6, 2, 7, 2),
    Sketcher.Constraint("Tangent", 7, 1, 4, 1),
    Sketcher.Constraint("Tangent", 8, 2, 9, 2),
    Sketcher.Constraint("Tangent", 9, 1, 10, 1),
    Sketcher.Constraint("Tangent", 10, 2, 11, 2),
    Sketcher.Constraint("Tangent", 11, 1, 8, 1),
    Sketcher.Constraint("Tangent", 12, 2, 13, 2),
    Sketcher.Constraint("Tangent", 13, 1, 14, 1),
    Sketcher.Constraint("Tangent", 14, 2, 15, 2),
    Sketcher.Constraint("Tangent", 15, 1, 12, 1),
    Sketcher.Constraint("Equal", 1, 3),
    Sketcher.Constraint("Equal", 3, 5),
    Sketcher.Constraint("Equal", 5, 7),
    Sketcher.Constraint("Equal", 7, 9),
    Sketcher.Constraint("Equal", 9, 11),
    Sketcher.Constraint("Equal", 11, 13),
    Sketcher.Constraint("Equal", 13, 15),
    Sketcher.Constraint("Parallel", 2, 4),
    Sketcher.Constraint("Perpendicular", 6, 8),
    Sketcher.Constraint("Parallel", 10, 12),
    Sketcher.Constraint("Horizontal", 3, 3, 9, 3),
    Sketcher.Constraint("Horizontal", 1, 3, 11, 3),
    Sketcher.Constraint("Horizontal", 7, 3, 13, 3),
    Sketcher.Constraint("Horizontal", 5, 3, 15, 3),
    Sketcher.Constraint("Horizontal", 3, 1, 8, 2),
    Sketcher.Constraint("Vertical", 5, 3, 9, 3),
    Sketcher.Constraint("Vertical", 7, 3, 11, 3),
    Sketcher.Constraint("Vertical", 1, 3, 13, 3),
    Sketcher.Constraint("Radius", 1, 2.0),
    Sketcher.Constraint("Distance", 0, 10.0),
    Sketcher.Constraint("DistanceX", 1, 3, -1, 1, 118.204091),
    Sketcher.Constraint("DistanceY", -1, 1, 3, 3, 168.917738),
    Sketcher.Constraint("DistanceY", -1, 1, 5, 3, 197.20201),
    Sketcher.Constraint("DistanceX", 5, 1, -1, 1, 138.003081),
])
pocket2 = body.newObject("PartDesign::Pocket", "Pocket001")
pocket2.Profile = sketch3
pocket2.Length = 10
pocket2.Reversed = True

doc.recompute()
